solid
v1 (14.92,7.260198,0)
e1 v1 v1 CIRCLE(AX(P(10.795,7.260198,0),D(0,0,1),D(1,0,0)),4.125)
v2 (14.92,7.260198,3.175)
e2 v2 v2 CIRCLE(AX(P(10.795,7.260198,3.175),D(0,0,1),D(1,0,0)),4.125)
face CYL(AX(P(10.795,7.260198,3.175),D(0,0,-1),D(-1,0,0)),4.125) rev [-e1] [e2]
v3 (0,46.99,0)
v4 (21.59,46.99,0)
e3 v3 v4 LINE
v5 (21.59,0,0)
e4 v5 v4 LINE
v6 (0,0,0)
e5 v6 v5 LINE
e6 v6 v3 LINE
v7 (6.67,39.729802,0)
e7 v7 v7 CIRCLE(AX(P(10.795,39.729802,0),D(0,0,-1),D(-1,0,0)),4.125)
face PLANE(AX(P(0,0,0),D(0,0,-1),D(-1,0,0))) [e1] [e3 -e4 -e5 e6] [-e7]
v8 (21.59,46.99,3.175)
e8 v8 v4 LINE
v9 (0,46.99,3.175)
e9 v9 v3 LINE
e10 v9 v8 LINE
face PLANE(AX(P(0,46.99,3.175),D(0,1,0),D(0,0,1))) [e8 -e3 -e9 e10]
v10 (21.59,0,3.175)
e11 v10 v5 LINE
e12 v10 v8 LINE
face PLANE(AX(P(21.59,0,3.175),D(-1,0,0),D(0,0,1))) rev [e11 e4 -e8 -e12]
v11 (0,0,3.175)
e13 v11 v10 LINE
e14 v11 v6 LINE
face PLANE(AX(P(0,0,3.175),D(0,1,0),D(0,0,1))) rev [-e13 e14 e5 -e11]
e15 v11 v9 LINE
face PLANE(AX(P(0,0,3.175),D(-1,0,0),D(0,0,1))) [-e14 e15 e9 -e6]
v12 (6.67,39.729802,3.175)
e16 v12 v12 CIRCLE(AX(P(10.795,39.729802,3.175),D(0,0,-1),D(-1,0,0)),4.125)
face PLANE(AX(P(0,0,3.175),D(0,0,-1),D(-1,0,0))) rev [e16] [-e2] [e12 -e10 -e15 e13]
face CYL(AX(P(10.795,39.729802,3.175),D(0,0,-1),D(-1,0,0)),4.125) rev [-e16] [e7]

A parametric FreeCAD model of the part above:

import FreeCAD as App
import Part
import Sketcher
Q = App.Units.Quantity

doc = App.newDocument("Part")
body = doc.addObject("PartDesign::Body", "Body")

sketch1 = doc.addObject("Sketcher::SketchObject", "Sketch")
body.addObject(sketch1)
sketch1.AttachmentSupport = (doc.XY_Plane, [""])
sketch1.MapMode = "FlatFace"
sketch1.addGeometry([
    Part.LineSegment(App.Vector(0, 47, 0), App.Vector(0, 0, 0)),
    Part.LineSegment(App.Vector(0, 0, 0), App.Vector(21.6, 0, 0)),
    Part.LineSegment(App.Vector(21.6, 0, 0), App.Vector(21.6, 47, 0)),
    Part.LineSegment(App.Vector(21.6, 47, 0), App.Vector(0, 47, 0)),
    Part.Circle(App.Vector(10.8, 7.3, 0), App.Vector(0, 0, 1), 4.1),
    Part.Circle(App.Vector(10.8, 39.7, 0), App.Vector(0, 0, 1), 4.1),
], False)
sketch1.addConstraint([
    Sketcher.Constraint("Coincident", 0, 2, 1, 1),
    Sketcher.Constraint("Coincident", 1, 2, 2, 1),
    Sketcher.Constraint("Coincident", 2, 2, 3, 1),
    Sketcher.Constraint("Coincident", 3, 2, 0, 1),
    Sketcher.Constraint("Vertical", 0),
    Sketcher.Constraint("Horizontal", 1),
    Sketcher.Constraint("Vertical", 2),
    Sketcher.Constraint("Horizontal", 3),
    Sketcher.Constraint("Coincident", 0, 2, -1, 1),
    Sketcher.Constraint("Equal", 4, 5),
    Sketcher.Constraint("Vertical", 4, 3, 5, 3),
    Sketcher.Constraint("DistanceX", 1, 1, 1, 2, Q("0.85 in")),
    Sketcher.Constraint("DistanceY", 0, 2, 0, 1, Q("1.85 in")),
    Sketcher.Constraint("Diameter", 4, 8.25),
    Sketcher.Constraint("DistanceX", -1, 1, 4, 3, Q("0.425 in")),
    Sketcher.Constraint("DistanceY", -1, 1, 4, 3, 7.260198),
    Sketcher.Constraint("DistanceY", -1, 1, 5, 3, 39.729802),
])
pad1 = doc.addObject("PartDesign::Pad", "Pad")
body.addObject(pad1)
pad1.Profile = sketch1
pad1.Length = Q("0.125 in")

doc.recompute()
